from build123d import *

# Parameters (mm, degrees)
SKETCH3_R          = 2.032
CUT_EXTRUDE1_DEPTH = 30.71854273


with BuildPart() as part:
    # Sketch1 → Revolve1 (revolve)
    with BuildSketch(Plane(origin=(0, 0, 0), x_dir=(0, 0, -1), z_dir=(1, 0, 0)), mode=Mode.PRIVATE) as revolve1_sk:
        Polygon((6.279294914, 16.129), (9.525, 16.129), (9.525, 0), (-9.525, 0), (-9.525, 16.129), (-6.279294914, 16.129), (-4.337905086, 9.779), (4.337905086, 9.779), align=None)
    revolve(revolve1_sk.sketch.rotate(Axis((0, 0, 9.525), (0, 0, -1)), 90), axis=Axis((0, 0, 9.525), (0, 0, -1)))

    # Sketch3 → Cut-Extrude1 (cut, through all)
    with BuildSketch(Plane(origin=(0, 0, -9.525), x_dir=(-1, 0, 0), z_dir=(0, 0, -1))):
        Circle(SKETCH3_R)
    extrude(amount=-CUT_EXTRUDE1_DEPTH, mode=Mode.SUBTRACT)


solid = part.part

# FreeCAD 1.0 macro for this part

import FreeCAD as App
import Part
import Sketcher

V = App.Vector
Q = App.Units.Quantity

doc = App.newDocument("Part")
body = doc.addObject("PartDesign::Body", "Body")

# Sketch on YZ plane
sketch1 = body.newObject("Sketcher::SketchObject", "Sketch")
sketch1.AttachmentSupport = (doc.getObject("YZ_Plane"), [""])
sketch1.MapMode = "FlatFace"
sketch1.addGeometry([
    Part.LineSegment(V(16.1, -9.5, 0), V(16.1, -6.3, 0)),  # 0
    Part.LineSegment(V(16.1, -6.3, 0), V(9.8, -4.3, 0)),  # 1
    Part.LineSegment(V(9.8, -4.3, 0), V(9.8, 4.3, 0)),  # 2
    Part.LineSegment(V(9.8, 4.3, 0), V(16.1, 6.3, 0)),  # 3
    Part.LineSegment(V(16.1, 6.3, 0), V(16.1, 9.5, 0)),  # 4
    Part.LineSegment(V(16.1, 9.5, 0), V(0, 9.5, 0)),  # 5
    Part.LineSegment(V(0, 9.5, 0), V(0, -9.5, 0)),  # 6
    Part.LineSegment(V(0, -9.5, 0), V(16.1, -9.5, 0)),  # 7
], False)
sketch1.addConstraint([
    Sketcher.Constraint("Coincident", 0, 2, 1, 1),
    Sketcher.Constraint("Coincident", 1, 2, 2, 1),
    Sketcher.Constraint("Coincident", 2, 2, 3, 1),
    Sketcher.Constraint("Coincident", 3, 2, 4, 1),
    Sketcher.Constraint("Coincident", 4, 2, 5, 1),
    Sketcher.Constraint("Coincident", 5, 2, 6, 1),
    Sketcher.Constraint("Coincident", 6, 2, 7, 1),
    Sketcher.Constraint("Coincident", 7, 2, 0, 1),
    Sketcher.Constraint("Vertical", 0),
    Sketcher.Constraint("Vertical", 2),
    Sketcher.Constraint("Vertical", 4),
    Sketcher.Constraint("Horizontal", 5),
    Sketcher.Constraint("Vertical", 6),
    Sketcher.Constraint("Horizontal", 7),
    Sketcher.Constraint("Symmetric", 5, 2, 6, 2, -1, 1),
    Sketcher.Constraint("Symmetric", 0, 2, 3, 2, -1),
    Sketcher.Constraint("Equal", 1, 3),
    Sketcher.Constraint("Angle", 1, Q("163 deg")),
    Sketcher.Constraint("DistanceY", 6, 2, 6, 1, Q("0.75 in")),
    Sketcher.Constraint("DistanceX", 5, 2, 5, 1, Q("0.635 in")),
    Sketcher.Constraint("DistanceX", 1, 2, 0, 2, Q("0.25 in")),
    Sketcher.Constraint("DistanceY", 0, 2, 2, 2, Q("0.418 in")),
])
revolution = body.newObject("PartDesign::Revolution", "Revolution")
revolution.Profile = sketch1
revolution.ReferenceAxis = (sketch1, ["V_Axis"])
revolution.Angle = 360

# Sketch on XY plane
sketch2 = body.newObject("Sketcher::SketchObject", "Sketch001")
sketch2.AttachmentSupport = (doc.getObject("XY_Plane"), [""])
sketch2.MapMode = "FlatFace"
sketch2.AttachmentOffset = App.Placement(V(0, 0, -0.375 * 25.4), App.Rotation())
sketch2.addGeometry(Part.Circle(V(0, 0, 0), V(0, 0, 1), 2), False)
sketch2.addConstraint([
    Sketcher.Constraint("Coincident", 0, 3, -1, 1),
    Sketcher.Constraint("Diameter", 0, Q("0.16 in")),
])
pocket1 = body.newObject("PartDesign::Pocket", "Pocket")
pocket1.Profile = sketch2
pocket1.Type = "ThroughAll"
pocket1.Reversed = True

doc.recompute()
